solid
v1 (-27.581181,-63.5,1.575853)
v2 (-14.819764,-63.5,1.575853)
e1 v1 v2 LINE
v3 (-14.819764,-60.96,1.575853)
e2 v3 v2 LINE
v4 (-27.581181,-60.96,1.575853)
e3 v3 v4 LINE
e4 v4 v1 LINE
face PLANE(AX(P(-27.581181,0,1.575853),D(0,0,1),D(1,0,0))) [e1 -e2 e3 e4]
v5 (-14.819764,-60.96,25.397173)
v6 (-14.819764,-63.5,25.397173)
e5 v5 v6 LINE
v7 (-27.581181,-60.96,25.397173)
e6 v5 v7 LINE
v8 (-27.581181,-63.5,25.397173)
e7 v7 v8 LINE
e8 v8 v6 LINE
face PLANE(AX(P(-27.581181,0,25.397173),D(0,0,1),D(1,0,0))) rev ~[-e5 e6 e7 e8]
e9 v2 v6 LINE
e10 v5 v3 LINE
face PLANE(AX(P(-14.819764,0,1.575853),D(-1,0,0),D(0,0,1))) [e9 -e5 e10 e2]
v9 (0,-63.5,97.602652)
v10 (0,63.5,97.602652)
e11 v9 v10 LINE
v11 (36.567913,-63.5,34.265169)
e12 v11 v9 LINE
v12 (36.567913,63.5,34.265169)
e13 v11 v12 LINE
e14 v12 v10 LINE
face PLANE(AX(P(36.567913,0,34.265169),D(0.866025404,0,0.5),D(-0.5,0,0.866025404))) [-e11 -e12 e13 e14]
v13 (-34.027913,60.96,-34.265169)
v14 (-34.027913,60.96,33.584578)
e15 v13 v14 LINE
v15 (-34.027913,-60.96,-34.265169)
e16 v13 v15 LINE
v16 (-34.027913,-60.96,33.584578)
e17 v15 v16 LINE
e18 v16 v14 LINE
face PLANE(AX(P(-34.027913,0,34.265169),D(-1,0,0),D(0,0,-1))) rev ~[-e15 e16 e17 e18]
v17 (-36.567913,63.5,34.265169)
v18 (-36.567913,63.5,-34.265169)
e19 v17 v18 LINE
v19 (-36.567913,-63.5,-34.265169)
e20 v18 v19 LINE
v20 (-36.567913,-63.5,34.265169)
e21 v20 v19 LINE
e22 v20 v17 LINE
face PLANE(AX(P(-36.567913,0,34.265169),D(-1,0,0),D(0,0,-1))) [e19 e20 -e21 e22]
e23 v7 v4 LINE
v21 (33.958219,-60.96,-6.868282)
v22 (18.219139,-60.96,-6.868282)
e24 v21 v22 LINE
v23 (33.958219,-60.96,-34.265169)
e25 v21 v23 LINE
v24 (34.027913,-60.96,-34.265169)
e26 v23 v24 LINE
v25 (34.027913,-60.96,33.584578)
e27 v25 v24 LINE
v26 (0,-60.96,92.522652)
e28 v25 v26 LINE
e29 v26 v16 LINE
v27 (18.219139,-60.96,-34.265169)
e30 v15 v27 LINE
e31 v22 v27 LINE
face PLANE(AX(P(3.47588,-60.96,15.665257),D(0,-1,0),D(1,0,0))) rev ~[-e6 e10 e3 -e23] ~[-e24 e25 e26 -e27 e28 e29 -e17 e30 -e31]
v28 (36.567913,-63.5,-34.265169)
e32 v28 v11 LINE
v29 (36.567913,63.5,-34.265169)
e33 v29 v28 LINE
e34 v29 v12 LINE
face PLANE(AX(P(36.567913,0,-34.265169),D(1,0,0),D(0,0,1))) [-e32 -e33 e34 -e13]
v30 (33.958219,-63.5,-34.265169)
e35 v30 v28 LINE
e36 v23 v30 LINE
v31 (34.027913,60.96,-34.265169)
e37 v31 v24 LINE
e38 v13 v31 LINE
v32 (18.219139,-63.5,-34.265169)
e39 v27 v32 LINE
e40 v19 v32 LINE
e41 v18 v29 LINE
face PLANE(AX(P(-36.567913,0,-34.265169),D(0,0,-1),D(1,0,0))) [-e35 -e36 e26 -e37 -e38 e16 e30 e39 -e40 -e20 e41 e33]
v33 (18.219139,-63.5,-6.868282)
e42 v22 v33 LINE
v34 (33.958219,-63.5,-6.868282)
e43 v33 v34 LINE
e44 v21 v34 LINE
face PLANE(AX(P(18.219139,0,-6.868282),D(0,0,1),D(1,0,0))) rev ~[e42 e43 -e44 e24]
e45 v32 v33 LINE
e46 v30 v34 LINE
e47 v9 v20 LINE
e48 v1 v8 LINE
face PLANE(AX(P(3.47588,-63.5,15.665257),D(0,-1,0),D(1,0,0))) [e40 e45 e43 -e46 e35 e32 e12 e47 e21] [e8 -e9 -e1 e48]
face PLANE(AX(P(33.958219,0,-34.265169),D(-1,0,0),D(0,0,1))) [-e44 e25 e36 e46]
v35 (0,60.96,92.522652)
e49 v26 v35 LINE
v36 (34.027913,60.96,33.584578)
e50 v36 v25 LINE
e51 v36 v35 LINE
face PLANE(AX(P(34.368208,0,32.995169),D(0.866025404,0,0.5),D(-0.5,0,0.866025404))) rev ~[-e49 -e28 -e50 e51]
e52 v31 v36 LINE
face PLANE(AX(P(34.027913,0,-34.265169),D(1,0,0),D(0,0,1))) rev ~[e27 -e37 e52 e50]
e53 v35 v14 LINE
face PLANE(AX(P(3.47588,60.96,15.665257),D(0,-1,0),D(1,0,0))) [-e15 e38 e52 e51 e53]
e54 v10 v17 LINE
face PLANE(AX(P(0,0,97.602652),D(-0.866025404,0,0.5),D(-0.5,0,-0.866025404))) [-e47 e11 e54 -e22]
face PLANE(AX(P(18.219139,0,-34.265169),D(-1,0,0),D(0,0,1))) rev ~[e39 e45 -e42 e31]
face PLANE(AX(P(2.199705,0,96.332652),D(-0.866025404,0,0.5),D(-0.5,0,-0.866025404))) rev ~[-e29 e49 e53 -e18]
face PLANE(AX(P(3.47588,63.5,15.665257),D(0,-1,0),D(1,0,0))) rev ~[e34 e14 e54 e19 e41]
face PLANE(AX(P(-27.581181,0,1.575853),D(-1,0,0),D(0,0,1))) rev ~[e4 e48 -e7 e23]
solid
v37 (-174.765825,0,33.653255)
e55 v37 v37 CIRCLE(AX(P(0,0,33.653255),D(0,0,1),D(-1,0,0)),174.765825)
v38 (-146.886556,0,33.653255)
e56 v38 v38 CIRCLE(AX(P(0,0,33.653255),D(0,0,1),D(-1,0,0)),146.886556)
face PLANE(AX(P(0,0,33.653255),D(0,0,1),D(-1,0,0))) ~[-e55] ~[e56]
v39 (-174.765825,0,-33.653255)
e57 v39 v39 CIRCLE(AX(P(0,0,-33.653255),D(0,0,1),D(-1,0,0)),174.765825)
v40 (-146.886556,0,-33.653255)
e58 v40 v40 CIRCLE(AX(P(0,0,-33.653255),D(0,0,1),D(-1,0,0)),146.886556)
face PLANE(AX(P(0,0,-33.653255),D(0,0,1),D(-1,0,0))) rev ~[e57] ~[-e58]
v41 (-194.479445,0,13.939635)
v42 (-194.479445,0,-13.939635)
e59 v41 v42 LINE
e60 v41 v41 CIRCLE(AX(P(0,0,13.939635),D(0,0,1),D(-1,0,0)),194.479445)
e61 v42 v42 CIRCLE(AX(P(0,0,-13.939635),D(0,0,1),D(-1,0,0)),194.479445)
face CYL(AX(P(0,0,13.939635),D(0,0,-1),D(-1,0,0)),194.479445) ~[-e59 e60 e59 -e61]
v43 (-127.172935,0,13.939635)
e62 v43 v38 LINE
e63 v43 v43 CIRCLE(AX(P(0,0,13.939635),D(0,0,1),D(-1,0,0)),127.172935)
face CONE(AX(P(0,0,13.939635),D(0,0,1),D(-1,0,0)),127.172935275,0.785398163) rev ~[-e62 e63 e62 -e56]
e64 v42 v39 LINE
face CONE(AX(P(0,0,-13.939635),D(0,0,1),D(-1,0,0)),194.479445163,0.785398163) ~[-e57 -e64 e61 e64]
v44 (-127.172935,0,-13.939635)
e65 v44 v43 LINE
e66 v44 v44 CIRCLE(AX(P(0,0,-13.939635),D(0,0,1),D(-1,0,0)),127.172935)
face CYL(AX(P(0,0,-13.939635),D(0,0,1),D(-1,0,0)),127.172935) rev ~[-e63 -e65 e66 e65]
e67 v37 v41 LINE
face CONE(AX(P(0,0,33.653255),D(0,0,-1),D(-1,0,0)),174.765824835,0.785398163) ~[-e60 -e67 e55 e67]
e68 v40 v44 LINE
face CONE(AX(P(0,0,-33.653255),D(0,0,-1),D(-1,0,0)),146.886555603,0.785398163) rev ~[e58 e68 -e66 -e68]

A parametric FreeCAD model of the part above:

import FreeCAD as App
import Part
import Sketcher
Q = App.Units.Quantity


def faces_at(feature, points):
    """Names of the faces that lie closest to the given points."""
    faces = feature.Shape.Faces
    near = lambda p: min(range(len(faces)), key=lambda i: faces[i].distToShape(Part.Vertex(*p))[0])
    return sorted({f"Face{near(p) + 1}" for p in points})

doc = App.newDocument("Part")
body = doc.addObject("PartDesign::Body", "Body")

sketch1 = body.newObject("Sketcher::SketchObject", "Sketch")
sketch1.AttachmentSupport = (doc.getObject("XZ_Plane"), [""])
sketch1.MapMode = "FlatFace"
sketch1.addGeometry([
    Part.LineSegment(App.Vector(-37, 34, 0), App.Vector(-37, -34, 0)),
    Part.LineSegment(App.Vector(-37, -34, 0), App.Vector(37, -34, 0)),
    Part.LineSegment(App.Vector(37, -34, 0), App.Vector(37, 34, 0)),
    Part.LineSegment(App.Vector(37, 34, 0), App.Vector(0, 98, 0)),
    Part.LineSegment(App.Vector(0, 98, 0), App.Vector(-37, 34, 0)),
], False)
sketch1.addConstraint([
    Sketcher.Constraint("Coincident", 0, 2, 1, 1),
    Sketcher.Constraint("Coincident", 1, 2, 2, 1),
    Sketcher.Constraint("Coincident", 2, 2, 3, 1),
    Sketcher.Constraint("Coincident", 3, 2, 4, 1),
    Sketcher.Constraint("Coincident", 4, 2, 0, 1),
    Sketcher.Constraint("Vertical", 0),
    Sketcher.Constraint("Horizontal", 1),
    Sketcher.Constraint("Vertical", 2),
    Sketcher.Constraint("Symmetric", 0, 2, 2, 2, -1, 1),
    Sketcher.Constraint("PointOnObject", 3, 2, -2),
    Sketcher.Constraint("Horizontal", 2, 2, 4, 2),
    Sketcher.Constraint("Angle", 3, Q("120 deg")),
    Sketcher.Constraint("DistanceY", 0, 2, 0, 1, Q("68.530339 mm")),
    Sketcher.Constraint("DistanceX", 1, 1, 1, 2, Q("73.135825 mm")),
])
pad1 = body.newObject("PartDesign::Pad", "Pad")
pad1.Profile = sketch1
pad1.Length = Q("5 in")
pad1.Midplane = True
doc.recompute()

thickness = body.newObject("PartDesign::Thickness", "Thickness")
thickness.Base = (pad1, faces_at(pad1, [(0, 0, -34.265)]))
thickness.Value = Q("0.1 in")
thickness.Reversed = True
thickness.Join = "Arc"

sketch2 = body.newObject("Sketcher::SketchObject", "Sketch001")
sketch2.AttachmentSupport = (doc.getObject("XZ_Plane"), [""])
sketch2.MapMode = "FlatFace"
sketch2.addGeometry([
    Part.LineSegment(App.Vector(-28, 25, 0), App.Vector(-28, 2, 0)),
    Part.LineSegment(App.Vector(-28, 2, 0), App.Vector(-15, 2, 0)),
    Part.LineSegment(App.Vector(-15, 2, 0), App.Vector(-15, 25, 0)),
    Part.LineSegment(App.Vector(-15, 25, 0), App.Vector(-28, 25, 0)),
    Part.LineSegment(App.Vector(18, -7, 0), App.Vector(18, -34, 0)),
    Part.LineSegment(App.Vector(18, -34, 0), App.Vector(34, -34, 0)),
    Part.LineSegment(App.Vector(34, -34, 0), App.Vector(34, -7, 0)),
    Part.LineSegment(App.Vector(34, -7, 0), App.Vector(18, -7, 0)),
], False)
sketch2.addConstraint([
    Sketcher.Constraint("Coincident", 0, 2, 1, 1),
    Sketcher.Constraint("Coincident", 1, 2, 2, 1),
    Sketcher.Constraint("Coincident", 2, 2, 3, 1),
    Sketcher.Constraint("Coincident", 3, 2, 0, 1),
    Sketcher.Constraint("Coincident", 4, 2, 5, 1),
    Sketcher.Constraint("Coincident", 5, 2, 6, 1),
    Sketcher.Constraint("Coincident", 6, 2, 7, 1),
    Sketcher.Constraint("Coincident", 7, 2, 4, 1),
    Sketcher.Constraint("Vertical", 0),
    Sketcher.Constraint("Horizontal", 1),
    Sketcher.Constraint("Vertical", 2),
    Sketcher.Constraint("Horizontal", 3),
    Sketcher.Constraint("Vertical", 4),
    Sketcher.Constraint("Horizontal", 5),
    Sketcher.Constraint("Vertical", 6),
    Sketcher.Constraint("Horizontal", 7),
    Sketcher.Constraint("DistanceX", 5, 1, 5, 2, Q("15.73908 mm")),
    Sketcher.Constraint("DistanceY", 0, 2, 0, 1, Q("23.82132 mm")),
    Sketcher.Constraint("DistanceX", 0, 2, 5, 2, Q("61.5394 mm")),
    Sketcher.Constraint("DistanceX", 1, 1, 1, 2, Q("12.761418 mm")),
    Sketcher.Constraint("DistanceY", 4, 2, 4, 1, Q("27.396888 mm")),
    Sketcher.Constraint("DistanceX", 0, 2, -1, 1, Q("27.581181 mm")),
    Sketcher.Constraint("DistanceY", 4, 2, -1, 1, Q("34.265169 mm")),
    Sketcher.Constraint("DistanceY", -1, 1, 0, 2, Q("1.575853 mm")),
])
pocket1 = body.newObject("PartDesign::Pocket", "Pocket")
pocket1.Profile = sketch2
pocket1.Type = "ThroughAll"
pocket1.Reversed = True
body2 = doc.addObject("PartDesign::Body", "Body001")

sketch3 = body2.newObject("Sketcher::SketchObject", "Sketch002")
sketch3.AttachmentSupport = (doc.getObject("XZ_Plane001"), [""])
sketch3.MapMode = "FlatFace"
sketch3.addGeometry([
    Part.LineSegment(App.Vector(-147, -34, 0), App.Vector(-127, -14, 0)),
    Part.LineSegment(App.Vector(-127, -14, 0), App.Vector(-127, 14, 0)),
    Part.LineSegment(App.Vector(-127, 14, 0), App.Vector(-147, 34, 0)),
    Part.LineSegment(App.Vector(-147, 34, 0), App.Vector(-175, 34, 0)),
    Part.LineSegment(App.Vector(-175, 34, 0), App.Vector(-194, 14, 0)),
    Part.LineSegment(App.Vector(-194, 14, 0), App.Vector(-194, -14, 0)),
    Part.LineSegment(App.Vector(-194, -14, 0), App.Vector(-175, -34, 0)),
    Part.LineSegment(App.Vector(-175, -34, 0), App.Vector(-147, -34, 0)),
], False)
sketch3.addConstraint([
    Sketcher.Constraint("Coincident", 0, 2, 1, 1),
    Sketcher.Constraint("Coincident", 1, 2, 2, 1),
    Sketcher.Constraint("Coincident", 2, 2, 3, 1),
    Sketcher.Constraint("Coincident", 3, 2, 4, 1),
    Sketcher.Constraint("Coincident", 4, 2, 5, 1),
    Sketcher.Constraint("Coincident", 5, 2, 6, 1),
    Sketcher.Constraint("Coincident", 6, 2, 7, 1),
    Sketcher.Constraint("Coincident", 7, 2, 0, 1),
    Sketcher.Constraint("Vertical", 1),
    Sketcher.Constraint("Horizontal", 3),
    Sketcher.Constraint("Vertical", 5),
    Sketcher.Constraint("Horizontal", 7),
    Sketcher.Constraint("Symmetric", 3, 2, 6, 2, -1),
    Sketcher.Constraint("Perpendicular", 0, 2),
    Sketcher.Constraint("Perpendicular", 2, 4),
    Sketcher.Constraint("Perpendicular", 4, 6),
    Sketcher.Constraint("Horizontal", 1, 2, 4, 2),
    Sketcher.Constraint("Horizontal", 0, 2, 5, 2),
    Sketcher.Constraint("Vertical", 2, 2, 7, 2),
    Sketcher.Constraint("Equal", 7, 1),
    Sketcher.Constraint("DistanceX", 3, 2, 3, 1, Q("27.879269 mm")),
    Sketcher.Constraint("Distance", 0, Q("27.879269 mm")),
    Sketcher.Constraint("DistanceX", 0, 2, -1, 1, Q("127.172935 mm")),
])
revolution = body2.newObject("PartDesign::Revolution", "Revolution")
revolution.Profile = sketch3
revolution.ReferenceAxis = (sketch3, ["V_Axis"])
revolution.Angle = 360

doc.recompute()
